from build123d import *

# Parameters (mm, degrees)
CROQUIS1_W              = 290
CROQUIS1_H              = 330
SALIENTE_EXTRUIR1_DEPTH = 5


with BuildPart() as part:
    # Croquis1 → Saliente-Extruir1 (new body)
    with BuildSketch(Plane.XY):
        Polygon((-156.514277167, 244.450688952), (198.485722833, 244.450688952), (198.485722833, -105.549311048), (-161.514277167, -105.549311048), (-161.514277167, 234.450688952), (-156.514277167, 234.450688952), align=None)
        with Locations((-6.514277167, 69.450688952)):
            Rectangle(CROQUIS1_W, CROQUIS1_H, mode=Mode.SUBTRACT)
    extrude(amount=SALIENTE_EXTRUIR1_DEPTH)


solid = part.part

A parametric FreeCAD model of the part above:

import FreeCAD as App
import Part
import Sketcher

V = App.Vector
Q = App.Units.Quantity


def add_polygon(sketch, points):
    """Adds a closed chain of lines whose ends are joined by coincident constraints."""
    first, n = sketch.GeometryCount, len(points)
    for a, b in zip(points, points[1:] + points[:1]):
        sketch.addGeometry(Part.LineSegment(App.Vector(*a, 0), App.Vector(*b, 0)), False)
    for i in range(n):
        sketch.addConstraint(Sketcher.Constraint("Coincident", first + i, 2, first + (i + 1) % n, 1))

doc = App.newDocument("Part")
body = doc.addObject("PartDesign::Body", "Body")

# Sketch on XY plane
sketch1 = body.newObject("Sketcher::SketchObject", "Sketch")
sketch1.AttachmentSupport = (doc.getObject("XY_Plane"), [""])
sketch1.MapMode = "FlatFace"
add_polygon(sketch1, [(198, 244), (-157, 244), (-157, 234), (-162, 234), (-162, -106), (198, -106)])  # lines 0-5
add_polygon(sketch1, [(-152, -96), (-152, 234), (138, 234), (138, -96)])  # lines 6-9
sketch1.addConstraint(Sketcher.Constraint("Horizontal", 0))
sketch1.addConstraint(Sketcher.Constraint("Vertical", 1))
sketch1.addConstraint(Sketcher.Constraint("Horizontal", 2))
sketch1.addConstraint(Sketcher.Constraint("Vertical", 3))
sketch1.addConstraint(Sketcher.Constraint("Horizontal", 4))
sketch1.addConstraint(Sketcher.Constraint("Vertical", 5))
sketch1.addConstraint(Sketcher.Constraint("Vertical", 6))
sketch1.addConstraint(Sketcher.Constraint("Horizontal", 7))
sketch1.addConstraint(Sketcher.Constraint("Vertical", 8))
sketch1.addConstraint(Sketcher.Constraint("Horizontal", 9))
sketch1.addConstraint(Sketcher.Constraint("Horizontal", 2, 2, 6, 2))
sketch1.addConstraint(Sketcher.Constraint("DistanceX", 0, 2, 0, 1, Q("355 mm")))
sketch1.addConstraint(Sketcher.Constraint("DistanceX", 2, 2, 2, 1, Q("5 mm")))
sketch1.addConstraint(Sketcher.Constraint("DistanceX", 7, 1, 7, 2, Q("290 mm")))
sketch1.addConstraint(Sketcher.Constraint("DistanceY", 1, 2, 1, 1, Q("10 mm")))
sketch1.addConstraint(Sketcher.Constraint("DistanceY", 3, 2, 3, 1, Q("340 mm")))
sketch1.addConstraint(Sketcher.Constraint("DistanceY", 6, 1, 6, 2, Q("330 mm")))
sketch1.addConstraint(Sketcher.Constraint("DistanceX", 1, 2, 6, 2, Q("5 mm")))
sketch1.addConstraint(Sketcher.Constraint("DistanceY", -1, 1, 0, 2, Q("244.450689 mm")))
sketch1.addConstraint(Sketcher.Constraint("DistanceX", 0, 2, -1, 1, Q("156.514277 mm")))
pad1 = body.newObject("PartDesign::Pad", "Pad")
pad1.Profile = sketch1
pad1.Length = 5

doc.recompute()
